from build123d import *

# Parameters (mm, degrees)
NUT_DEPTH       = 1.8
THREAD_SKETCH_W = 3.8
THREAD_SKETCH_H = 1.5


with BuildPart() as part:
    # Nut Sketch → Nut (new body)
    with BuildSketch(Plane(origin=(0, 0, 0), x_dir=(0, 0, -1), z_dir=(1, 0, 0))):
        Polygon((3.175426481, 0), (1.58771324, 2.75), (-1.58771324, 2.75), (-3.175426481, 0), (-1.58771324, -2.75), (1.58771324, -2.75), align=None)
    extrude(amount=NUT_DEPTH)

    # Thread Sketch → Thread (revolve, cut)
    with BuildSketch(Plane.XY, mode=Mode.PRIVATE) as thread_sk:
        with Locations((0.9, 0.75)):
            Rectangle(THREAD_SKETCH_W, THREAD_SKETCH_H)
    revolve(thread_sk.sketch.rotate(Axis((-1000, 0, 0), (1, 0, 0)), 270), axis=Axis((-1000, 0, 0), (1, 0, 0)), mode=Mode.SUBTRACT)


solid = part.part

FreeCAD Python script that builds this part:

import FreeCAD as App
import Part
import Sketcher

V = App.Vector
Q = App.Units.Quantity


def add_polygon(sketch, points):
    """Adds a closed chain of lines whose ends are joined by coincident constraints."""
    first, n = sketch.GeometryCount, len(points)
    for a, b in zip(points, points[1:] + points[:1]):
        sketch.addGeometry(Part.LineSegment(App.Vector(*a, 0), App.Vector(*b, 0)), False)
    for i in range(n):
        sketch.addConstraint(Sketcher.Constraint("Coincident", first + i, 2, first + (i + 1) % n, 1))

doc = App.newDocument("Part")
body = doc.addObject("PartDesign::Body", "Body")

# Sketch on YZ plane
sketch1 = doc.addObject("Sketcher::SketchObject", "Sketch")
body.addObject(sketch1)
sketch1.AttachmentSupport = (doc.YZ_Plane, [""])
sketch1.MapMode = "FlatFace"
add_polygon(sketch1, [(0, -3.175426), (2.75, -1.587713), (2.75, 1.587713), (0, 3.175426), (-2.75, 1.587713), (-2.75, -1.587713)])  # lines 0-5
sketch1.addConstraint([
    Sketcher.Constraint("Vertical", 1),
    Sketcher.Constraint("Vertical", 4),
    Sketcher.Constraint("Symmetric", 0, 2, 3, 2, -1, 1),
    Sketcher.Constraint("Symmetric", 2, 2, 5, 2, -1, 1),
    Sketcher.Constraint("PointOnObject", 2, 2, -2),
    Sketcher.Constraint("Parallel", 2, 5),
    Sketcher.Constraint("Horizontal", 1, 2, 3, 2),
    Sketcher.Constraint("Angle", 0, Q("30 deg")),
    Sketcher.Constraint("DistanceX", 3, 2, 1, 2, Q("5.5 mm")),
    Sketcher.Constraint("DistanceY", 1, 1, 1, 2, Q("3.175426 mm")),
])
pad1 = doc.addObject("PartDesign::Pad", "Pad")
body.addObject(pad1)
pad1.Profile = sketch1
pad1.Length = 1.8

# Sketch on XY plane
sketch2 = doc.addObject("Sketcher::SketchObject", "Sketch001")
body.addObject(sketch2)
sketch2.AttachmentSupport = (doc.XY_Plane, [""])
sketch2.MapMode = "FlatFace"
add_polygon(sketch2, [(-1, 1.5), (-1, 0), (2.8, 0), (2.8, 1.5)])  # lines 0-3
sketch2.addConstraint([
    Sketcher.Constraint("Vertical", 0),
    Sketcher.Constraint("Horizontal", 1),
    Sketcher.Constraint("Vertical", 2),
    Sketcher.Constraint("Horizontal", 3),
    Sketcher.Constraint("PointOnObject", 0, 2, -1),
    Sketcher.Constraint("DistanceX", 1, 1, 1, 2, Q("3.8 mm")),
    Sketcher.Constraint("DistanceY", 0, 2, 0, 1, Q("1.5 mm")),
    Sketcher.Constraint("DistanceX", 0, 2, -1, 1, Q("1 mm")),
])
groove = doc.addObject("PartDesign::Groove", "Groove")
body.addObject(groove)
groove.Profile = sketch2
groove.ReferenceAxis = (sketch2, ["H_Axis"])
groove.Angle = 360

doc.recompute()
